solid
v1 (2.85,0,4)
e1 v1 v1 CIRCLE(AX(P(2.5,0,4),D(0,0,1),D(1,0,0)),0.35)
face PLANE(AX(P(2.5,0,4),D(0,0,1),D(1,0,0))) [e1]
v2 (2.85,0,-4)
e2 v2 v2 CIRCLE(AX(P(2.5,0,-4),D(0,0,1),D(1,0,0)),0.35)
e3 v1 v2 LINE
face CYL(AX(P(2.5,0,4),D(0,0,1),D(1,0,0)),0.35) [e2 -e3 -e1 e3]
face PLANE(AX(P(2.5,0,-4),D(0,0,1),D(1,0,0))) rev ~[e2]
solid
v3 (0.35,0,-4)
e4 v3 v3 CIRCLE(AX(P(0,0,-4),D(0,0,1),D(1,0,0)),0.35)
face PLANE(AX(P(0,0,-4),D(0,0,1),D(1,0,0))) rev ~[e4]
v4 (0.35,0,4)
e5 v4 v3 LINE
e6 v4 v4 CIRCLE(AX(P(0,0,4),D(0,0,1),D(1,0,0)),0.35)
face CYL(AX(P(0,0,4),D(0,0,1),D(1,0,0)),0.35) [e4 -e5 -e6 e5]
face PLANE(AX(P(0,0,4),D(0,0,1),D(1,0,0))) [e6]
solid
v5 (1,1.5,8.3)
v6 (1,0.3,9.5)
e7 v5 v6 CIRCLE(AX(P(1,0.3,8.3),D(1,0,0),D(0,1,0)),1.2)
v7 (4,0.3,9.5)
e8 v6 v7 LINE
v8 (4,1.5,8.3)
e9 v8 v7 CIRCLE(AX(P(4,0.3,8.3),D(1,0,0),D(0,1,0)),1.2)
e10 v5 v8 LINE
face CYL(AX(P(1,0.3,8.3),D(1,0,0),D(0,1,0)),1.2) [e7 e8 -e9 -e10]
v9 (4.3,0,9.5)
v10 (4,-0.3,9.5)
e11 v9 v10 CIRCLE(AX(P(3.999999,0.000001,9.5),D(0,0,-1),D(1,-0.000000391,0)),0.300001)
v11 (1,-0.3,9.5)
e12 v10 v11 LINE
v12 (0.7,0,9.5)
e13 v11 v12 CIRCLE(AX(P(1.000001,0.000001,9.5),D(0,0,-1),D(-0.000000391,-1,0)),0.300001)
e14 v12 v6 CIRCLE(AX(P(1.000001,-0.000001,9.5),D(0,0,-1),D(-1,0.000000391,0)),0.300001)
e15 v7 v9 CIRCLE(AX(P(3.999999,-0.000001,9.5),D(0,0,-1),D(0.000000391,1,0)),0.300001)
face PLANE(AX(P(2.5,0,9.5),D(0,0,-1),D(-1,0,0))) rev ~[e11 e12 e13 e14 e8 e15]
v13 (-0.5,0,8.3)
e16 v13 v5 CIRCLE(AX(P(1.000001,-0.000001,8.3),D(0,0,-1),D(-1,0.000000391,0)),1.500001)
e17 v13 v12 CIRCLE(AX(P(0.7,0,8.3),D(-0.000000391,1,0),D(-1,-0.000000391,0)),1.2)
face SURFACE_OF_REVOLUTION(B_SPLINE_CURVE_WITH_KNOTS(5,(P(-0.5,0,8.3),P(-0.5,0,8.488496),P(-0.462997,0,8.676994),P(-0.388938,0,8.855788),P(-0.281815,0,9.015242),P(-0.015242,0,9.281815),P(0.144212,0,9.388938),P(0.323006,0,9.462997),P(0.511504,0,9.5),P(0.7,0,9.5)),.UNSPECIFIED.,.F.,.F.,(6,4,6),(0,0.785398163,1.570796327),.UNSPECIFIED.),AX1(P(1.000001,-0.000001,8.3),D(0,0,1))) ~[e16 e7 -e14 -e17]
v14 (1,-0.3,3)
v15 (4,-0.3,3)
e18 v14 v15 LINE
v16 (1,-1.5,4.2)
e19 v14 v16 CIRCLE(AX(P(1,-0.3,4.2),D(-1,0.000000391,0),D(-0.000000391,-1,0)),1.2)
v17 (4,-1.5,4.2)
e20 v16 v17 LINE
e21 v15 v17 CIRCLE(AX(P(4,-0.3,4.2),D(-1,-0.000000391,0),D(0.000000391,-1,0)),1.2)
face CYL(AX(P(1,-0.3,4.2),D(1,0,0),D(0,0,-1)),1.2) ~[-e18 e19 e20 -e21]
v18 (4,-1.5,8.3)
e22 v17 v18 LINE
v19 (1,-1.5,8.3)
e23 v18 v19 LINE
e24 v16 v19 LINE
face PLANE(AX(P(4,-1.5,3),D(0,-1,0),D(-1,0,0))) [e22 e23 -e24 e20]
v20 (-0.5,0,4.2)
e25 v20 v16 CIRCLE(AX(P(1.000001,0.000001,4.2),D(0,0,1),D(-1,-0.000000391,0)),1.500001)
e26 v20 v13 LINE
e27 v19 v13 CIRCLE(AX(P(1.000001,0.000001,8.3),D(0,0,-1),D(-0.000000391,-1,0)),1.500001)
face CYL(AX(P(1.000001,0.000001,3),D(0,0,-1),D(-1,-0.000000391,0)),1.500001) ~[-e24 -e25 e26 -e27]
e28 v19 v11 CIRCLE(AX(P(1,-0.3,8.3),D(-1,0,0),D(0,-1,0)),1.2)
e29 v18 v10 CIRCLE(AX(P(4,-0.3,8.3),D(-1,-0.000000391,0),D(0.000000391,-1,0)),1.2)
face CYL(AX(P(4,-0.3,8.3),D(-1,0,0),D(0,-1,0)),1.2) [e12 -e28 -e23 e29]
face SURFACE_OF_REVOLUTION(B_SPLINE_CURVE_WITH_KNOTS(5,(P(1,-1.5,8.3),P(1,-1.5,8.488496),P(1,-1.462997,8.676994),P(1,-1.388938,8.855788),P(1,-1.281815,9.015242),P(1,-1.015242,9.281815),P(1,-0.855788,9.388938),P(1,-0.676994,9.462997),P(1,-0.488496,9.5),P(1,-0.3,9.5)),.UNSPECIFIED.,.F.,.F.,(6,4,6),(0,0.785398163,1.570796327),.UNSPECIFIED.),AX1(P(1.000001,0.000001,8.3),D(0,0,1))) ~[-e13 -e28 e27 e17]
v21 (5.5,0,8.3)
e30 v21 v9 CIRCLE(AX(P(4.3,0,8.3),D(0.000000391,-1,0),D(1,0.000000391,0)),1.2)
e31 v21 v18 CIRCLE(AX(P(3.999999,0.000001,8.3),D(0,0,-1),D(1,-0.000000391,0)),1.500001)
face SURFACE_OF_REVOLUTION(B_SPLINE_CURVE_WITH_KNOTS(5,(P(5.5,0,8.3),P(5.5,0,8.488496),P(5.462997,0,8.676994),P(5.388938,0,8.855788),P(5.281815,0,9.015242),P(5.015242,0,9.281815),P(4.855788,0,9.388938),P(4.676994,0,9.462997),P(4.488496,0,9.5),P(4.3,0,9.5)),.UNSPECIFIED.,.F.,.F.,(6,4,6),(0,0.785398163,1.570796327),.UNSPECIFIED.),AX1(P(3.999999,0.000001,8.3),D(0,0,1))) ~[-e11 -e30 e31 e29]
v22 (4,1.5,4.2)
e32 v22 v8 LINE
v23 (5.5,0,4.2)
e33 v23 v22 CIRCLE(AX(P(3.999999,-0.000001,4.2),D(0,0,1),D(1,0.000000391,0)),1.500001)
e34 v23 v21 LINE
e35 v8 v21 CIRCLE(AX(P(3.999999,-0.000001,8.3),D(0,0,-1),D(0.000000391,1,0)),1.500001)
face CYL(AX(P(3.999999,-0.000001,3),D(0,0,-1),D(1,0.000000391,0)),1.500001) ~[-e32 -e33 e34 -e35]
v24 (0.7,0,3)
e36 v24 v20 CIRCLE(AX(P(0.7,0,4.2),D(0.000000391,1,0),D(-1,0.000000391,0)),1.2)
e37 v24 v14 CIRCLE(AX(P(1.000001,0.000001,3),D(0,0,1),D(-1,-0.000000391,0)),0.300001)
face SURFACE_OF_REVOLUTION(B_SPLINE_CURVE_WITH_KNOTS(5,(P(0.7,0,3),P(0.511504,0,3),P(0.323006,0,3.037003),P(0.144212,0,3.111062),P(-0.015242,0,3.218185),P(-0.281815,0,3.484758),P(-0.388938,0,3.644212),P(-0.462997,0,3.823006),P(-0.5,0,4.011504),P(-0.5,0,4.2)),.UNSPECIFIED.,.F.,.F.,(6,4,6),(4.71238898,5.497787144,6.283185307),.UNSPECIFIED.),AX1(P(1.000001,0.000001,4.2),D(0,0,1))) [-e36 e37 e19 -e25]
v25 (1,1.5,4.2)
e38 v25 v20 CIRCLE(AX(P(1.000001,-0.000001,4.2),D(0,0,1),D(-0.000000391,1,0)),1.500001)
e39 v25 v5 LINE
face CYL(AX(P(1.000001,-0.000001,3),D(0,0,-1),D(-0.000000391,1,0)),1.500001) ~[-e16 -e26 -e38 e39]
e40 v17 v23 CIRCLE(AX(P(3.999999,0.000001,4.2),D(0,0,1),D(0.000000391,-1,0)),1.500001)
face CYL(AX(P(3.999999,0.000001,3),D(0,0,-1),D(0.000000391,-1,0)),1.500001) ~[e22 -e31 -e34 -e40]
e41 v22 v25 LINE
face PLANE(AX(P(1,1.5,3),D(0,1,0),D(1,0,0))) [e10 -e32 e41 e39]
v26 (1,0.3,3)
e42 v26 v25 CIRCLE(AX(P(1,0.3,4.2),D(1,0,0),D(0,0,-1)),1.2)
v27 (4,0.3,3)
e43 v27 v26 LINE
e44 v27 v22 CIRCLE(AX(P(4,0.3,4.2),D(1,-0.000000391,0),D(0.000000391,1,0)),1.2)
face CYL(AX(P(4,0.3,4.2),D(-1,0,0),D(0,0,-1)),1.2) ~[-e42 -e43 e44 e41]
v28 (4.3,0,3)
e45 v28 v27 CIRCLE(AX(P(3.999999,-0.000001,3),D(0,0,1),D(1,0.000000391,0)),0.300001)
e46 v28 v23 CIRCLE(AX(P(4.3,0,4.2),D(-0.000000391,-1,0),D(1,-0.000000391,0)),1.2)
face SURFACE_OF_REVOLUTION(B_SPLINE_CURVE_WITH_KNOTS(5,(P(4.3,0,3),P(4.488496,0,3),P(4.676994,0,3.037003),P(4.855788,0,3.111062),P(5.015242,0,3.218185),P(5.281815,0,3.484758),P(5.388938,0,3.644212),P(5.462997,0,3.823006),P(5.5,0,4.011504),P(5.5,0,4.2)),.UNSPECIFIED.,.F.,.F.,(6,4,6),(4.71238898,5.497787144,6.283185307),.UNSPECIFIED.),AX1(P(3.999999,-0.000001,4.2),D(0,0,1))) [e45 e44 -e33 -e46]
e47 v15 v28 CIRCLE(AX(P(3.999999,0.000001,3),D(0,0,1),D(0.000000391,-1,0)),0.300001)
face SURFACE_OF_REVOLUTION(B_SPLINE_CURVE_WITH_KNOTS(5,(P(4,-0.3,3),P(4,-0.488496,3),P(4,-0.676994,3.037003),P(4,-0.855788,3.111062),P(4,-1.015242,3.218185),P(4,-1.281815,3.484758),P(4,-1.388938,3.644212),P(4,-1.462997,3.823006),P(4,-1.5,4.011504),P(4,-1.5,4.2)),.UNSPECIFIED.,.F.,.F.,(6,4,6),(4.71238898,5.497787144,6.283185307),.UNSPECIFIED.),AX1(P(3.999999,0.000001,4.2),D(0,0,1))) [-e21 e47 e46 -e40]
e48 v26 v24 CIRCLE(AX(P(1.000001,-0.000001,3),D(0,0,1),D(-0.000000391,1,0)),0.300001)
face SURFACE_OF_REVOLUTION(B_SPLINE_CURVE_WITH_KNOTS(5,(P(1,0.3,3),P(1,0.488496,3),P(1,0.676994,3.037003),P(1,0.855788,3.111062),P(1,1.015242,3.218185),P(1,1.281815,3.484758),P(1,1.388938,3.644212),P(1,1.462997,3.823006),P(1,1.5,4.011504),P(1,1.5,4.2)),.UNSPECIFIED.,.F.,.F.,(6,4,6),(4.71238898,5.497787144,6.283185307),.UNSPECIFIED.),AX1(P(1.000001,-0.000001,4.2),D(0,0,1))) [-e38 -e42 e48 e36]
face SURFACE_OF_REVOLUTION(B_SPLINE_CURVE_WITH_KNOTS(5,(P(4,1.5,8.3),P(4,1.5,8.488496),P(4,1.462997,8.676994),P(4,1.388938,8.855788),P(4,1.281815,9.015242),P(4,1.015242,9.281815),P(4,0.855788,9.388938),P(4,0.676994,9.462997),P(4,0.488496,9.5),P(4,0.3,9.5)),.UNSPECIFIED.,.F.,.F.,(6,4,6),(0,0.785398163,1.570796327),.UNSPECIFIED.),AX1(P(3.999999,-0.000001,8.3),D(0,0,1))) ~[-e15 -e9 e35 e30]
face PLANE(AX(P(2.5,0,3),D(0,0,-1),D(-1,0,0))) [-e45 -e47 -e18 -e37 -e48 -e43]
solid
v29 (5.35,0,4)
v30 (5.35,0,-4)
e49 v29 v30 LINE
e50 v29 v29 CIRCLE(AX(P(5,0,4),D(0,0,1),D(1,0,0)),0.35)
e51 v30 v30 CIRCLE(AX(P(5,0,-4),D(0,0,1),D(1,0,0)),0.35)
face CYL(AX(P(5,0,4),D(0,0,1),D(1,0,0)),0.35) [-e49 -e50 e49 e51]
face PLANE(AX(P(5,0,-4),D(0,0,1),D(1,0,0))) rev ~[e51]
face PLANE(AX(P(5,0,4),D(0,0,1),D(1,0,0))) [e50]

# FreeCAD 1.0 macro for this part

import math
import FreeCAD as App
import Part
import Sketcher
from FreeCAD import Vector
Q = App.Units.Quantity


def edges_at(feature, points):
    """Names of the edges that pass closest to the given points."""
    edges = feature.Shape.Edges
    near = lambda p: min(range(len(edges)), key=lambda i: edges[i].distToShape(Part.Vertex(*p))[0])
    return sorted({f"Edge{near(p) + 1}" for p in points})

doc = App.newDocument("Part")
body = doc.addObject("PartDesign::Body", "Body")
body.AllowCompound = True

sketch1 = body.newObject("Sketcher::SketchObject", "Sketch")
sketch1.AttachmentSupport = (doc.getObject("XY_Plane"), [""])
sketch1.MapMode = "FlatFace"
sketch1.AttachmentOffset = App.Placement(Vector(0, 0, 4), App.Rotation())
sketch1.addGeometry(Part.Circle(Vector(0, 0, 0), Vector(0, 0, 1), 0.35), False)
sketch1.addGeometry(Part.Circle(Vector(5, 0, 0), Vector(0, 0, 1), 0.35), False)
sketch1.addGeometry(Part.Circle(Vector(2.5, 0, 0), Vector(0, 0, 1), 0.35), False)
sketch1.addConstraint(Sketcher.Constraint("Coincident", 0, 3, -1, 1))
sketch1.addConstraint(Sketcher.Constraint("Equal", 0, 1))
sketch1.addConstraint(Sketcher.Constraint("Equal", 1, 2))
sketch1.addConstraint(Sketcher.Constraint("PointOnObject", 1, 3, -1))
sketch1.addConstraint(Sketcher.Constraint("PointOnObject", 2, 3, -1))
sketch1.addConstraint(Sketcher.Constraint("Diameter", 0, Q("0.7 mm")))
sketch1.addConstraint(Sketcher.Constraint("DistanceX", -1, 1, 1, 3, Q("5 mm")))
sketch1.addConstraint(Sketcher.Constraint("DistanceX", -1, 1, 2, 3, Q("2.5 mm")))
pad1 = body.newObject("PartDesign::Pad", "Pad")
pad1.Profile = sketch1
pad1.Length = 8
pad1.Reversed = True
body2 = doc.addObject("PartDesign::Body", "Body001")

sketch2 = body2.newObject("Sketcher::SketchObject", "Sketch001")
sketch2.AttachmentSupport = (doc.getObject("XY_Plane001"), [""])
sketch2.MapMode = "FlatFace"
sketch2.AttachmentOffset = App.Placement(Vector(0, 0, 3), App.Rotation())
sketch2.addGeometry(Part.LineSegment(Vector(4, 1.5, 0), Vector(1, 1.5, 0)), False)
sketch2.addGeometry(Part.ArcOfCircle(Part.Circle(Vector(1, 0, 0), Vector(0, 0, 1), 1.5), math.radians(90), math.radians(180)), False)
sketch2.addGeometry(Part.ArcOfCircle(Part.Circle(Vector(1, 0, 0), Vector(0, 0, 1), 1.5), math.radians(-180), math.radians(-90)), False)
sketch2.addGeometry(Part.LineSegment(Vector(1, -1.5, 0), Vector(4, -1.5, 0)), False)
sketch2.addGeometry(Part.ArcOfCircle(Part.Circle(Vector(4, 0, 0), Vector(0, 0, 1), 1.5), math.radians(-90), math.radians(0)), False)
sketch2.addGeometry(Part.ArcOfCircle(Part.Circle(Vector(4, 0, 0), Vector(0, 0, 1), 1.5), math.radians(0), math.radians(90)), False)
sketch2.addConstraint(Sketcher.Constraint("Tangent", 0, 2, 1, 1))
sketch2.addConstraint(Sketcher.Constraint("Tangent", 1, 2, 2, 1))
sketch2.addConstraint(Sketcher.Constraint("Tangent", 2, 2, 3, 1))
sketch2.addConstraint(Sketcher.Constraint("Tangent", 3, 2, 4, 1))
sketch2.addConstraint(Sketcher.Constraint("Tangent", 4, 2, 5, 1))
sketch2.addConstraint(Sketcher.Constraint("Tangent", 5, 2, 0, 1))
sketch2.addConstraint(Sketcher.Constraint("Horizontal", 0))
sketch2.addConstraint(Sketcher.Constraint("Horizontal", 3))
sketch2.addConstraint(Sketcher.Constraint("Equal", 1, 2))
sketch2.addConstraint(Sketcher.Constraint("Equal", 2, 4))
sketch2.addConstraint(Sketcher.Constraint("PointOnObject", 1, 3, -1))
sketch2.addConstraint(Sketcher.Constraint("PointOnObject", 1, 2, -1))
sketch2.addConstraint(Sketcher.Constraint("PointOnObject", 4, 2, -1))
sketch2.addConstraint(Sketcher.Constraint("Radius", 1, Q("1.500001 mm")))
sketch2.addConstraint(Sketcher.Constraint("DistanceX", 0, 2, 0, 1, Q("3 mm")))
sketch2.addConstraint(Sketcher.Constraint("DistanceX", -1, 1, 1, 3, Q("1.000001 mm")))
pad2 = body2.newObject("PartDesign::Pad", "Pad001")
pad2.Profile = sketch2
pad2.Length = 6.5
doc.recompute()

fillet = body2.newObject("PartDesign::Fillet", "Fillet")
fillet.Base = (pad2, edges_at(pad2, [
    (2.5, 1.5, 9.5),
    (-0.061, 1.061, 9.5),
    (-0.061, -1.061, 9.5),
    (2.5, -1.5, 9.5),
    (5.061, -1.061, 9.5),
    (5.061, 1.061, 9.5),
]))
fillet.Radius = 1.2
doc.recompute()

fillet2 = body2.newObject("PartDesign::Fillet", "Fillet001")
fillet2.Base = (fillet, edges_at(fillet, [
    (5.061, -1.061, 3),
    (5.061, 1.061, 3),
    (2.5, 1.5, 3),
    (2.5, -1.5, 3),
    (-0.061, -1.061, 3),
    (-0.061, 1.061, 3),
]))
fillet2.Radius = 1.2

doc.recompute()
